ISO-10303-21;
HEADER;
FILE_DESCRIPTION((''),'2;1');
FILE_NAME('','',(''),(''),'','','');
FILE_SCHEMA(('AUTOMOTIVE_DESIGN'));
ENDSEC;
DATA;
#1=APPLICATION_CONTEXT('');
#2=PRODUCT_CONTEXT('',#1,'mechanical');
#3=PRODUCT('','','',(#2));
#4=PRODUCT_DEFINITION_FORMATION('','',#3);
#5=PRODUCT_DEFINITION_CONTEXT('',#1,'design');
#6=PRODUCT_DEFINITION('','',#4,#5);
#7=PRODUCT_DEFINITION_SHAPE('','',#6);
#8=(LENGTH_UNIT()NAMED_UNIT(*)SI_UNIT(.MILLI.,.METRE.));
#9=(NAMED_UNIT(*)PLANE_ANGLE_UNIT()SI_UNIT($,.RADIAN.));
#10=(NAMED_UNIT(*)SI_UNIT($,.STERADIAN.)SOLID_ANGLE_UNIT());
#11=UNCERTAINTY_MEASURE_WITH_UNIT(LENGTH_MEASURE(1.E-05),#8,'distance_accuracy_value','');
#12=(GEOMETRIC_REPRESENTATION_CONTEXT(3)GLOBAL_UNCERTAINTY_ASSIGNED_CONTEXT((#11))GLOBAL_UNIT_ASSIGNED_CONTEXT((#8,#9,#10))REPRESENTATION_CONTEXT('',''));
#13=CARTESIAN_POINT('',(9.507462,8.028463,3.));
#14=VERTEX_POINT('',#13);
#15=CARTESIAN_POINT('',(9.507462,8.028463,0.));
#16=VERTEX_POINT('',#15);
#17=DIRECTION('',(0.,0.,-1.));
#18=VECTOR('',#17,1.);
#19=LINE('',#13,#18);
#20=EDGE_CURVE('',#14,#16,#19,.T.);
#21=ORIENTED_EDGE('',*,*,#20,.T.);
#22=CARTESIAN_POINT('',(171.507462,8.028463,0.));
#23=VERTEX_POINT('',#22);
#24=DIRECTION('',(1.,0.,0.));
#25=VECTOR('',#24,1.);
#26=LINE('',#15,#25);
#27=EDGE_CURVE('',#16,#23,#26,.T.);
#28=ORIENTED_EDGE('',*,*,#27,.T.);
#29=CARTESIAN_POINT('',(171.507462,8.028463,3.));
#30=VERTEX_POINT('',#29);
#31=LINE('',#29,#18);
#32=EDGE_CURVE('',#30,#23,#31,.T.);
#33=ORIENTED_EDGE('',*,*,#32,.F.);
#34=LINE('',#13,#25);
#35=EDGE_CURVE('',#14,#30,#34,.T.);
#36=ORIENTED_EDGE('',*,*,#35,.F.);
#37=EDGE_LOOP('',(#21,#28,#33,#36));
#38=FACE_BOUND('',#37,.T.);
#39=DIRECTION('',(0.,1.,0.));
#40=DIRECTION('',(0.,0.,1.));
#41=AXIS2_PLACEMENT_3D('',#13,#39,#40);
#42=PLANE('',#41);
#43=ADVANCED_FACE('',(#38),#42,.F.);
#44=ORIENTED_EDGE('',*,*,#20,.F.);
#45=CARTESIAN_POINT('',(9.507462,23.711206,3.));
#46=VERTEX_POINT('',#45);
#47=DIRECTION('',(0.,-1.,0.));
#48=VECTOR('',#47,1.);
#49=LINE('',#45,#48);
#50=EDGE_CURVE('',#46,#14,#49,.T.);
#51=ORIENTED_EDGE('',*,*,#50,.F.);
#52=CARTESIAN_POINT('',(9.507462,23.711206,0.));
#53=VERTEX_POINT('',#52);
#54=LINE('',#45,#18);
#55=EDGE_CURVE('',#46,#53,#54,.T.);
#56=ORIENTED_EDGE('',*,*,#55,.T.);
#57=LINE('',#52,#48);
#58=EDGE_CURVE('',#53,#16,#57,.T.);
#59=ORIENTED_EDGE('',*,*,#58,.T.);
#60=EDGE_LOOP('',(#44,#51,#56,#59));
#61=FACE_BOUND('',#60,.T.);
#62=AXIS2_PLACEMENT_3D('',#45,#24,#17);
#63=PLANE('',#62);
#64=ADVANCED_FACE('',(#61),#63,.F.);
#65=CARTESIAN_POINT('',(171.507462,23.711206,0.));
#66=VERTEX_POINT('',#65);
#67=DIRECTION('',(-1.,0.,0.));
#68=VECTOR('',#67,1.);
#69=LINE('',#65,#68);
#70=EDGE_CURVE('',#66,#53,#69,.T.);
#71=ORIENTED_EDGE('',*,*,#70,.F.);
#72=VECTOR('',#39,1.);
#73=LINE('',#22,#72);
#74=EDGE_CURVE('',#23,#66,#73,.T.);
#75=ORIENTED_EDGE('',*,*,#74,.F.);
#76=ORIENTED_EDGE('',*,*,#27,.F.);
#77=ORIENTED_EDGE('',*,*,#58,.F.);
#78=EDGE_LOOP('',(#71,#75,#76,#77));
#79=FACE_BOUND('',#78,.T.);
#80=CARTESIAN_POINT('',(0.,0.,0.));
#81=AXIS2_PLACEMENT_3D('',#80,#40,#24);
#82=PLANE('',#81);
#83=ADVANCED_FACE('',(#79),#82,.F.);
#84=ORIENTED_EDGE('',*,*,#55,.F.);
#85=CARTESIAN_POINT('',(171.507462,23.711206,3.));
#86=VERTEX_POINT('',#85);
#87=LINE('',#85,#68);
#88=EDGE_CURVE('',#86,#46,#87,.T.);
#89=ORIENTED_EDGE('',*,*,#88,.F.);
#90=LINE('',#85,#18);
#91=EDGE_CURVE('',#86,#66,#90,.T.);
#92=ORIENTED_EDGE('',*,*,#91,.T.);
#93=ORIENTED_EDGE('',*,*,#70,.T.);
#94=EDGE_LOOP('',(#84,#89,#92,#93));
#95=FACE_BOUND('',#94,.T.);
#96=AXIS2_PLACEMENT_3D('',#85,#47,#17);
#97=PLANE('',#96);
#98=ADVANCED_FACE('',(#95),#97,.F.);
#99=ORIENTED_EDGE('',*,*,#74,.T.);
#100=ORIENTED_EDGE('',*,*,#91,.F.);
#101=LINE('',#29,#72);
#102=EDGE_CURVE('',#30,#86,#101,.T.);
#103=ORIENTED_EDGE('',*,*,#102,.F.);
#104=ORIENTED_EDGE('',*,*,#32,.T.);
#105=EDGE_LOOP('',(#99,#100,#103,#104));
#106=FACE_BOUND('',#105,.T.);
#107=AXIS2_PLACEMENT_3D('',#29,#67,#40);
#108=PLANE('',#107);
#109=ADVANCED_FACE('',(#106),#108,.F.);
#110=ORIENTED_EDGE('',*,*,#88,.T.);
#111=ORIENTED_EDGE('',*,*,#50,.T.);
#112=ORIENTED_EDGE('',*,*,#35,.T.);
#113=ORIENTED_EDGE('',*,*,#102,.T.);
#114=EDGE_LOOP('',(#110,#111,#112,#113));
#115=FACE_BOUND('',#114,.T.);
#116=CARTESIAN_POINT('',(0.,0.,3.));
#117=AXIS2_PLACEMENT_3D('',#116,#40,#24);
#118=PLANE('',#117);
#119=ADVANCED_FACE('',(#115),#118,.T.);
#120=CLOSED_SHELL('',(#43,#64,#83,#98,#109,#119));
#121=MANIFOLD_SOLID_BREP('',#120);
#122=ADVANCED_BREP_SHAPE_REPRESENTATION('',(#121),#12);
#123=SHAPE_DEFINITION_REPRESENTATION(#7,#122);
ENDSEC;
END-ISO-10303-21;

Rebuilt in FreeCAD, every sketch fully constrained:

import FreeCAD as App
import Part
import Sketcher
from FreeCAD import Vector


def add_polygon(sketch, points):
    """Adds a closed chain of lines whose ends are joined by coincident constraints."""
    first, n = sketch.GeometryCount, len(points)
    for a, b in zip(points, points[1:] + points[:1]):
        sketch.addGeometry(Part.LineSegment(App.Vector(*a, 0), App.Vector(*b, 0)), False)
    for i in range(n):
        sketch.addConstraint(Sketcher.Constraint("Coincident", first + i, 2, first + (i + 1) % n, 1))

doc = App.newDocument("Part")
body = doc.addObject("PartDesign::Body", "Body")

# Sketch on XY plane
sketch1 = body.newObject("Sketcher::SketchObject", "Sketch")
sketch1.AttachmentSupport = (doc.getObject("XY_Plane"), [""])
sketch1.MapMode = "FlatFace"
add_polygon(sketch1, [(10, 24), (10, 8), (172, 8), (172, 24)])  # lines 0-3
sketch1.addConstraint([
    Sketcher.Constraint("Vertical", 0),
    Sketcher.Constraint("Horizontal", 1),
    Sketcher.Constraint("Vertical", 2),
    Sketcher.Constraint("Horizontal", 3),
    Sketcher.Constraint("DistanceX", 1, 1, 1, 2, 162.0),
    Sketcher.Constraint("DistanceY", 0, 2, 0, 1, 15.682742),
    Sketcher.Constraint("DistanceX", -1, 1, 0, 2, 9.507462),
    Sketcher.Constraint("DistanceY", -1, 1, 0, 2, 8.028463),
])
pad1 = body.newObject("PartDesign::Pad", "Pad")
pad1.Profile = sketch1
pad1.Length = 3

doc.recompute()
